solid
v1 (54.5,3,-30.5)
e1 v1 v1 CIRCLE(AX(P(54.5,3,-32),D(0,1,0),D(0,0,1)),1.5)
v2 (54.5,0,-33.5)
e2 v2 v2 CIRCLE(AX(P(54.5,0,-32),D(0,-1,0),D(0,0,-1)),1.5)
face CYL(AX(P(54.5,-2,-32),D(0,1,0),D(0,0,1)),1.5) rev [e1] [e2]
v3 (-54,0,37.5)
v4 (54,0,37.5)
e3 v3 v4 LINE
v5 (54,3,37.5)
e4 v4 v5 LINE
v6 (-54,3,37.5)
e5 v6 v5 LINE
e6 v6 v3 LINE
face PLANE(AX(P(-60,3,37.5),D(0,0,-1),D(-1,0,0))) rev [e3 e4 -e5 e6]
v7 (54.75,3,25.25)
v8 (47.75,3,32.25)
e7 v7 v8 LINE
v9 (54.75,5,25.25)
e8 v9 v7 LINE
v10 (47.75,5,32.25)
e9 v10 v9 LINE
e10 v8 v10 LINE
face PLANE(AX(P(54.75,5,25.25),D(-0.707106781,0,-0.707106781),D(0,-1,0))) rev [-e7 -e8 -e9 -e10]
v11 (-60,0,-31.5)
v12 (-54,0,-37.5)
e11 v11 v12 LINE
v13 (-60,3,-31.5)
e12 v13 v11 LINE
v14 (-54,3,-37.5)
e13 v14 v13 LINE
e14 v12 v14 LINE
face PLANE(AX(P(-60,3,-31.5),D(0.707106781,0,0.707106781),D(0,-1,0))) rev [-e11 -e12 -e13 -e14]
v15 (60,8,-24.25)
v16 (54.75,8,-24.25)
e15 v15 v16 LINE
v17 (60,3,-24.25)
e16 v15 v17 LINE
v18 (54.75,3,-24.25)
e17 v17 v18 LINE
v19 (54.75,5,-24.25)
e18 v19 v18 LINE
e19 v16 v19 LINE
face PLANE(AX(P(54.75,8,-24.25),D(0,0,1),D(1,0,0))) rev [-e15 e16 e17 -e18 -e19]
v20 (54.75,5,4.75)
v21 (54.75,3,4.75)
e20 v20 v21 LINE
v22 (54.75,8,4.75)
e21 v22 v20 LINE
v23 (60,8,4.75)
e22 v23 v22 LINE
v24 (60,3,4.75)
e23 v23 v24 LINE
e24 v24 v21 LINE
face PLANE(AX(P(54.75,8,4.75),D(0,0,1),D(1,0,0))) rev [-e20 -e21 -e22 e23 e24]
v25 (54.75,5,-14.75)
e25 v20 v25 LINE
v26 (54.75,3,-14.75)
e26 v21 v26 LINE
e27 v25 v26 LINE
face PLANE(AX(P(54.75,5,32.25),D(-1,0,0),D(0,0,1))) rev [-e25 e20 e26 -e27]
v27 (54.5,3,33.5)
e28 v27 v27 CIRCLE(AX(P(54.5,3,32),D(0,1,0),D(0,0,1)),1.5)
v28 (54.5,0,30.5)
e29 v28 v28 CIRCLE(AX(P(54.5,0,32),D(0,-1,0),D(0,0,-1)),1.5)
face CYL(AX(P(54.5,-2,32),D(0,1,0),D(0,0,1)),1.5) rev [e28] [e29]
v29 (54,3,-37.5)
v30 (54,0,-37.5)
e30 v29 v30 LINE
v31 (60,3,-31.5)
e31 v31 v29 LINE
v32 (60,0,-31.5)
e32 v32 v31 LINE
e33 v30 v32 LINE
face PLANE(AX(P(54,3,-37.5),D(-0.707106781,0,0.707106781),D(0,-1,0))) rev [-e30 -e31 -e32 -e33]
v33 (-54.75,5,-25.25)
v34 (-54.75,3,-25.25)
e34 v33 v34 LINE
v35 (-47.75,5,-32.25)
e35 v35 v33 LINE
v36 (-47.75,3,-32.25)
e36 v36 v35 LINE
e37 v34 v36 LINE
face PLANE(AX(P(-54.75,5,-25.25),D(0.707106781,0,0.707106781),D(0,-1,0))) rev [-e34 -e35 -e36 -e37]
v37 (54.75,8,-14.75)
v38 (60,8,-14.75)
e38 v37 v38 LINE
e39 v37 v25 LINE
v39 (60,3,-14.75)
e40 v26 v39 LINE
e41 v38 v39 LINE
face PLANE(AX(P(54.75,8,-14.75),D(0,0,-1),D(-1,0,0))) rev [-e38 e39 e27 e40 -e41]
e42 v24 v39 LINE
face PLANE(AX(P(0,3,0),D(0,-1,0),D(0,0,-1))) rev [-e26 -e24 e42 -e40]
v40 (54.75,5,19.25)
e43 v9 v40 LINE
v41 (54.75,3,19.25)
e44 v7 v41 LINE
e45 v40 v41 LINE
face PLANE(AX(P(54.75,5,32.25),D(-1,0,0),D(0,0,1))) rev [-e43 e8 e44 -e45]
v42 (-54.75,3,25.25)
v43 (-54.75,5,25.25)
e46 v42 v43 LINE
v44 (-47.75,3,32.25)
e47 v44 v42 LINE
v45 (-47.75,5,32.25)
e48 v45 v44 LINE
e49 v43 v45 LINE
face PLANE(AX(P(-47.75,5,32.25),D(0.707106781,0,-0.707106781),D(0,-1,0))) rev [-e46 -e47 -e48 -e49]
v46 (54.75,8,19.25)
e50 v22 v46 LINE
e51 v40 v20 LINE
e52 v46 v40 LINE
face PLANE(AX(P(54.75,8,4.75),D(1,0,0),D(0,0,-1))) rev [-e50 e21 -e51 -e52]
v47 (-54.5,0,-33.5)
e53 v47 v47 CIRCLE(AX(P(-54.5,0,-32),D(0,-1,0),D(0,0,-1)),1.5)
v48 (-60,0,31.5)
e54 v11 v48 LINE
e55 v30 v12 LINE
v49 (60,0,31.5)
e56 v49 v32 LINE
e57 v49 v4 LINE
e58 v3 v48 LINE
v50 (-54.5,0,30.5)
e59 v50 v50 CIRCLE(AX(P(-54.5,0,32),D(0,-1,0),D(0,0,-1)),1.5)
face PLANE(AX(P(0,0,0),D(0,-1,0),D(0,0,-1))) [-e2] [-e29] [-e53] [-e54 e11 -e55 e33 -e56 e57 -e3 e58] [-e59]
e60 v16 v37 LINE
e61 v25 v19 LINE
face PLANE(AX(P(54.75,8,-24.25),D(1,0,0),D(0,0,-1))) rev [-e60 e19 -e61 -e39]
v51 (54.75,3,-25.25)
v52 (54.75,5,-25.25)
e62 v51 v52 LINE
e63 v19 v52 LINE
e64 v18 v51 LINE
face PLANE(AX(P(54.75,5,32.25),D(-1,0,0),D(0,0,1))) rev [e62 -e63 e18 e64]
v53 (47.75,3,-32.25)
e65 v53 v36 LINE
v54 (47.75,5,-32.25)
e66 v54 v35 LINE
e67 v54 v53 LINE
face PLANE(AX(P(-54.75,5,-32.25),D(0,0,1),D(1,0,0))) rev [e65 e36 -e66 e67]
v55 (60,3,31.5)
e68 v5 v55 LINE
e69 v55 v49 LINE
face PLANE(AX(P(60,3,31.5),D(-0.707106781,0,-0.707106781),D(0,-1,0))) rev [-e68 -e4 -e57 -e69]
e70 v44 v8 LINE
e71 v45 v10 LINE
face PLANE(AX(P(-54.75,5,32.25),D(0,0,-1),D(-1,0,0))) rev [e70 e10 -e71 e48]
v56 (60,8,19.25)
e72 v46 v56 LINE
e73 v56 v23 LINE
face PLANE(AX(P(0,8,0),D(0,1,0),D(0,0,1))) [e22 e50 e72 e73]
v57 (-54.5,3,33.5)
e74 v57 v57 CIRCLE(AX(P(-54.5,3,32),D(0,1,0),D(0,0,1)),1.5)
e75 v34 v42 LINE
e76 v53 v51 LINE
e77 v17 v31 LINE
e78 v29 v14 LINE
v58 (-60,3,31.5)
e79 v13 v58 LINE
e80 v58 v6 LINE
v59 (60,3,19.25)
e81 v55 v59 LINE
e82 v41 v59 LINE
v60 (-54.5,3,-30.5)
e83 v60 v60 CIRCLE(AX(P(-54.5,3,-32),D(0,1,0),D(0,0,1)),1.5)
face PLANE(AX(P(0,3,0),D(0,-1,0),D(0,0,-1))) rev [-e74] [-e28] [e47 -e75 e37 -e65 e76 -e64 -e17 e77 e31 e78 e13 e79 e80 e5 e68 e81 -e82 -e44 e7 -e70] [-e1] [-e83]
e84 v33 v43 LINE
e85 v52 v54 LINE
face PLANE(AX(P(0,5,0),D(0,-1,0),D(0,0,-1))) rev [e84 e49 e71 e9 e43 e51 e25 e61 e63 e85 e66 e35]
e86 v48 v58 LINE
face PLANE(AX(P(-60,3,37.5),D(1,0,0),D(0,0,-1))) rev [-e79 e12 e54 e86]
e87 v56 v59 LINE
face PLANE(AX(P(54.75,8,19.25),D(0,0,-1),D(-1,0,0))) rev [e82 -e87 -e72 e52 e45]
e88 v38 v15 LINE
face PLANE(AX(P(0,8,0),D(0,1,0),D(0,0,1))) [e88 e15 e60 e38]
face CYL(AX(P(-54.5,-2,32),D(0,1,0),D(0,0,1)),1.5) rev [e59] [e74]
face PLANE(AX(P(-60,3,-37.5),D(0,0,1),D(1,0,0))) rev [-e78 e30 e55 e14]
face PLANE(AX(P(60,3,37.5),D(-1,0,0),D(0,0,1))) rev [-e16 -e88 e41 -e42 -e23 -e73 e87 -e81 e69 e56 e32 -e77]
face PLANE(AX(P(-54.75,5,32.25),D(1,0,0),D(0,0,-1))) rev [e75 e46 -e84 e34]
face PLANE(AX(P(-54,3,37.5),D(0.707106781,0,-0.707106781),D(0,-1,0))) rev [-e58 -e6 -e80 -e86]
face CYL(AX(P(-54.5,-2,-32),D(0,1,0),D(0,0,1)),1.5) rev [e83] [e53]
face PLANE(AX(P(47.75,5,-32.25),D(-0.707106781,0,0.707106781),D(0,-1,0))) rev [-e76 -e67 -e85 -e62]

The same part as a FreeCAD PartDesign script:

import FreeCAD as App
import Part
import Sketcher

V = App.Vector


def edges_at(feature, points):
    """Names of the edges that pass closest to the given points."""
    edges = feature.Shape.Edges
    near = lambda p: min(range(len(edges)), key=lambda i: edges[i].distToShape(Part.Vertex(*p))[0])
    return sorted({f"Edge{near(p) + 1}" for p in points})

doc = App.newDocument("Part")
params = doc.addObject("Spreadsheet::Sheet", "Params")
for row, (alias, value) in enumerate([
    ("sketch1_width", "120 mm"),
    ("sketch1_height", "75 mm"),
    ("pad1_length", "3 mm"),
    ("chamfer_size", "6 mm"),
    ("sketch2_width", "109.5 mm"),
    ("sketch2_height", "64.5 mm"),
    ("pad2_length", "2 mm"),
    ("chamfer2_size", "7 mm"),
    ("sketch3_diameter", "3 mm"),
    ("pocket1_length", "5 mm"),
    ("sketch4_height", "9.5 mm"),
    ("sketch4_height2", "14.5 mm"),
    ("sketch4_width", "5.25 mm"),
    ("pad3_length", "5 mm"),
], start=1):
    params.set(f"A{row}", alias)
    params.set(f"B{row}", "=" + value)
    params.setAlias(f"B{row}", alias)

body = doc.addObject("PartDesign::Body", "Body")

# Sketch on XZ plane
sketch1 = body.newObject("Sketcher::SketchObject", "Sketch")
sketch1.AttachmentSupport = (doc.getObject("XZ_Plane"), [""])
sketch1.MapMode = "FlatFace"
sketch1.addGeometry([
    Part.LineSegment(V(-60, -38, 0), V(-60, 38, 0)),
    Part.LineSegment(V(-60, 38, 0), V(60, 38, 0)),
    Part.LineSegment(V(60, 38, 0), V(60, -38, 0)),
    Part.LineSegment(V(60, -38, 0), V(-60, -38, 0)),
], False)
sketch1.addConstraint([
    Sketcher.Constraint("Coincident", 0, 2, 1, 1),
    Sketcher.Constraint("Coincident", 1, 2, 2, 1),
    Sketcher.Constraint("Coincident", 2, 2, 3, 1),
    Sketcher.Constraint("Coincident", 3, 2, 0, 1),
    Sketcher.Constraint("Vertical", 0),
    Sketcher.Constraint("Horizontal", 1),
    Sketcher.Constraint("Vertical", 2),
    Sketcher.Constraint("Horizontal", 3),
    Sketcher.Constraint("Symmetric", 0, 2, 2, 2, -1, 1),
    Sketcher.Constraint("DistanceX", 1, 1, 1, 2, 120.0),
    Sketcher.Constraint("DistanceY", 0, 1, 0, 2, 75.0),
])
sketch1.setExpression("Constraints[9]", "Params.sketch1_width")
sketch1.setExpression("Constraints[10]", "Params.sketch1_height")
pad1 = body.newObject("PartDesign::Pad", "Pad")
pad1.Profile = sketch1
pad1.setExpression("Length", "Params.pad1_length")
pad1.Reversed = True
doc.recompute()

chamfer = body.newObject("PartDesign::Chamfer", "Chamfer")
chamfer.Base = (pad1, edges_at(pad1, [
    (60, 1.5, 37.5),
    (-60, 1.5, 37.5),
    (-60, 1.5, -37.5),
    (60, 1.5, -37.5),
]))
chamfer.setExpression("Size", "Params.chamfer_size")

# Sketch on XZ plane
sketch2 = body.newObject("Sketcher::SketchObject", "Sketch001")
sketch2.AttachmentSupport = (doc.getObject("XZ_Plane"), [""])
sketch2.MapMode = "FlatFace"
sketch2.AttachmentOffset = App.Placement(V(0, 0, -3), App.Rotation())
sketch2.addGeometry([
    Part.LineSegment(V(-55, -32, 0), V(-55, 32, 0)),
    Part.LineSegment(V(-55, 32, 0), V(55, 32, 0)),
    Part.LineSegment(V(55, 32, 0), V(55, -32, 0)),
    Part.LineSegment(V(55, -32, 0), V(-55, -32, 0)),
], False)
sketch2.addConstraint([
    Sketcher.Constraint("Coincident", 0, 2, 1, 1),
    Sketcher.Constraint("Coincident", 1, 2, 2, 1),
    Sketcher.Constraint("Coincident", 2, 2, 3, 1),
    Sketcher.Constraint("Coincident", 3, 2, 0, 1),
    Sketcher.Constraint("Vertical", 0),
    Sketcher.Constraint("Horizontal", 1),
    Sketcher.Constraint("Vertical", 2),
    Sketcher.Constraint("Horizontal", 3),
    Sketcher.Constraint("Symmetric", 0, 2, 2, 2, -1, 1),
    Sketcher.Constraint("DistanceX", 1, 1, 1, 2, 109.5),
    Sketcher.Constraint("DistanceY", 0, 1, 0, 2, 64.5),
])
sketch2.setExpression("Constraints[9]", "Params.sketch2_width")
sketch2.setExpression("Constraints[10]", "Params.sketch2_height")
pad2 = body.newObject("PartDesign::Pad", "Pad001")
pad2.Profile = sketch2
pad2.setExpression("Length", "Params.pad2_length")
pad2.Reversed = True
doc.recompute()

chamfer2 = body.newObject("PartDesign::Chamfer", "Chamfer001")
chamfer2.Base = (pad2, edges_at(pad2, [
    (54.75, 4, 32.25),
    (54.75, 4, -32.25),
    (-54.75, 4, -32.25),
    (-54.75, 4, 32.25),
]))
chamfer2.setExpression("Size", "Params.chamfer2_size")

# Sketch on XZ plane
sketch3 = body.newObject("Sketcher::SketchObject", "Sketch002")
sketch3.AttachmentSupport = (doc.getObject("XZ_Plane"), [""])
sketch3.MapMode = "FlatFace"
sketch3.AttachmentOffset = App.Placement(V(0, 0, -3), App.Rotation())
sketch3.addGeometry([
    Part.Circle(V(-54.5, 32, 0), V(0, 0, 1), 1.5),
    Part.Circle(V(-54.5, -32, 0), V(0, 0, 1), 1.5),
    Part.Circle(V(54.5, -32, 0), V(0, 0, 1), 1.5),
    Part.Circle(V(54.5, 32, 0), V(0, 0, 1), 1.5),
], False)
sketch3.addConstraint([
    Sketcher.Constraint("Equal", 0, 1),
    Sketcher.Constraint("Equal", 1, 2),
    Sketcher.Constraint("Equal", 2, 3),
    Sketcher.Constraint("Symmetric", 0, 3, 2, 3, -1, 1),
    Sketcher.Constraint("Symmetric", 1, 3, 3, 3, -1, 1),
    Sketcher.Constraint("Symmetric", 1, 3, 2, 3, -2),
    Sketcher.Constraint("Diameter", 0, 3.0),
    Sketcher.Constraint("DistanceY", -1, 1, 0, 3, 32.0),
    Sketcher.Constraint("DistanceX", 1, 3, 2, 3, 109.0),
])
sketch3.setExpression("Constraints[6]", "Params.sketch3_diameter")
pocket1 = body.newObject("PartDesign::Pocket", "Pocket")
pocket1.Profile = sketch3
pocket1.setExpression("Length", "Params.pocket1_length")
pocket1.Reversed = True

# Sketch on XZ plane
sketch4 = body.newObject("Sketcher::SketchObject", "Sketch003")
sketch4.AttachmentSupport = (doc.getObject("XZ_Plane"), [""])
sketch4.MapMode = "FlatFace"
sketch4.AttachmentOffset = App.Placement(V(0, 0, -3), App.Rotation())
sketch4.addGeometry([
    Part.LineSegment(V(55, -24, 0), V(55, -15, 0)),  # 0
    Part.LineSegment(V(55, -15, 0), V(60, -15, 0)),  # 1
    Part.LineSegment(V(60, -15, 0), V(60, -24, 0)),  # 2
    Part.LineSegment(V(60, -24, 0), V(55, -24, 0)),  # 3
    Part.LineSegment(V(55, 5, 0), V(55, 19, 0)),  # 4
    Part.LineSegment(V(55, 19, 0), V(60, 19, 0)),  # 5
    Part.LineSegment(V(60, 19, 0), V(60, 5, 0)),  # 6
    Part.LineSegment(V(60, 5, 0), V(55, 5, 0)),  # 7
], False)
sketch4.addConstraint([
    Sketcher.Constraint("Coincident", 0, 2, 1, 1),
    Sketcher.Constraint("Coincident", 1, 2, 2, 1),
    Sketcher.Constraint("Coincident", 2, 2, 3, 1),
    Sketcher.Constraint("Coincident", 3, 2, 0, 1),
    Sketcher.Constraint("Coincident", 4, 2, 5, 1),
    Sketcher.Constraint("Coincident", 5, 2, 6, 1),
    Sketcher.Constraint("Coincident", 6, 2, 7, 1),
    Sketcher.Constraint("Coincident", 7, 2, 4, 1),
    Sketcher.Constraint("Vertical", 0),
    Sketcher.Constraint("Horizontal", 1),
    Sketcher.Constraint("Vertical", 2),
    Sketcher.Constraint("Horizontal", 3),
    Sketcher.Constraint("Vertical", 4),
    Sketcher.Constraint("Horizontal", 5),
    Sketcher.Constraint("Vertical", 6),
    Sketcher.Constraint("Horizontal", 7),
    Sketcher.Constraint("Vertical", 3, 2, 4, 2),
    Sketcher.Constraint("Vertical", 2, 2, 5, 2),
    Sketcher.Constraint("DistanceY", 0, 1, 0, 2, 9.5),
    Sketcher.Constraint("DistanceY", 4, 1, 4, 2, 14.5),
    Sketcher.Constraint("DistanceX", -1, 1, 1, 2, 60.0),
    Sketcher.Constraint("DistanceY", 0, 2, 4, 2, 34.0),
    Sketcher.Constraint("DistanceX", 1, 1, 1, 2, 5.25),
    Sketcher.Constraint("DistanceY", 0, 2, -1, 1, 14.75),
])
sketch4.setExpression("Constraints[18]", "Params.sketch4_height")
sketch4.setExpression("Constraints[19]", "Params.sketch4_height2")
sketch4.setExpression("Constraints[22]", "Params.sketch4_width")
pad3 = body.newObject("PartDesign::Pad", "Pad002")
pad3.Profile = sketch4
pad3.setExpression("Length", "Params.pad3_length")
pad3.Reversed = True

doc.recompute()
